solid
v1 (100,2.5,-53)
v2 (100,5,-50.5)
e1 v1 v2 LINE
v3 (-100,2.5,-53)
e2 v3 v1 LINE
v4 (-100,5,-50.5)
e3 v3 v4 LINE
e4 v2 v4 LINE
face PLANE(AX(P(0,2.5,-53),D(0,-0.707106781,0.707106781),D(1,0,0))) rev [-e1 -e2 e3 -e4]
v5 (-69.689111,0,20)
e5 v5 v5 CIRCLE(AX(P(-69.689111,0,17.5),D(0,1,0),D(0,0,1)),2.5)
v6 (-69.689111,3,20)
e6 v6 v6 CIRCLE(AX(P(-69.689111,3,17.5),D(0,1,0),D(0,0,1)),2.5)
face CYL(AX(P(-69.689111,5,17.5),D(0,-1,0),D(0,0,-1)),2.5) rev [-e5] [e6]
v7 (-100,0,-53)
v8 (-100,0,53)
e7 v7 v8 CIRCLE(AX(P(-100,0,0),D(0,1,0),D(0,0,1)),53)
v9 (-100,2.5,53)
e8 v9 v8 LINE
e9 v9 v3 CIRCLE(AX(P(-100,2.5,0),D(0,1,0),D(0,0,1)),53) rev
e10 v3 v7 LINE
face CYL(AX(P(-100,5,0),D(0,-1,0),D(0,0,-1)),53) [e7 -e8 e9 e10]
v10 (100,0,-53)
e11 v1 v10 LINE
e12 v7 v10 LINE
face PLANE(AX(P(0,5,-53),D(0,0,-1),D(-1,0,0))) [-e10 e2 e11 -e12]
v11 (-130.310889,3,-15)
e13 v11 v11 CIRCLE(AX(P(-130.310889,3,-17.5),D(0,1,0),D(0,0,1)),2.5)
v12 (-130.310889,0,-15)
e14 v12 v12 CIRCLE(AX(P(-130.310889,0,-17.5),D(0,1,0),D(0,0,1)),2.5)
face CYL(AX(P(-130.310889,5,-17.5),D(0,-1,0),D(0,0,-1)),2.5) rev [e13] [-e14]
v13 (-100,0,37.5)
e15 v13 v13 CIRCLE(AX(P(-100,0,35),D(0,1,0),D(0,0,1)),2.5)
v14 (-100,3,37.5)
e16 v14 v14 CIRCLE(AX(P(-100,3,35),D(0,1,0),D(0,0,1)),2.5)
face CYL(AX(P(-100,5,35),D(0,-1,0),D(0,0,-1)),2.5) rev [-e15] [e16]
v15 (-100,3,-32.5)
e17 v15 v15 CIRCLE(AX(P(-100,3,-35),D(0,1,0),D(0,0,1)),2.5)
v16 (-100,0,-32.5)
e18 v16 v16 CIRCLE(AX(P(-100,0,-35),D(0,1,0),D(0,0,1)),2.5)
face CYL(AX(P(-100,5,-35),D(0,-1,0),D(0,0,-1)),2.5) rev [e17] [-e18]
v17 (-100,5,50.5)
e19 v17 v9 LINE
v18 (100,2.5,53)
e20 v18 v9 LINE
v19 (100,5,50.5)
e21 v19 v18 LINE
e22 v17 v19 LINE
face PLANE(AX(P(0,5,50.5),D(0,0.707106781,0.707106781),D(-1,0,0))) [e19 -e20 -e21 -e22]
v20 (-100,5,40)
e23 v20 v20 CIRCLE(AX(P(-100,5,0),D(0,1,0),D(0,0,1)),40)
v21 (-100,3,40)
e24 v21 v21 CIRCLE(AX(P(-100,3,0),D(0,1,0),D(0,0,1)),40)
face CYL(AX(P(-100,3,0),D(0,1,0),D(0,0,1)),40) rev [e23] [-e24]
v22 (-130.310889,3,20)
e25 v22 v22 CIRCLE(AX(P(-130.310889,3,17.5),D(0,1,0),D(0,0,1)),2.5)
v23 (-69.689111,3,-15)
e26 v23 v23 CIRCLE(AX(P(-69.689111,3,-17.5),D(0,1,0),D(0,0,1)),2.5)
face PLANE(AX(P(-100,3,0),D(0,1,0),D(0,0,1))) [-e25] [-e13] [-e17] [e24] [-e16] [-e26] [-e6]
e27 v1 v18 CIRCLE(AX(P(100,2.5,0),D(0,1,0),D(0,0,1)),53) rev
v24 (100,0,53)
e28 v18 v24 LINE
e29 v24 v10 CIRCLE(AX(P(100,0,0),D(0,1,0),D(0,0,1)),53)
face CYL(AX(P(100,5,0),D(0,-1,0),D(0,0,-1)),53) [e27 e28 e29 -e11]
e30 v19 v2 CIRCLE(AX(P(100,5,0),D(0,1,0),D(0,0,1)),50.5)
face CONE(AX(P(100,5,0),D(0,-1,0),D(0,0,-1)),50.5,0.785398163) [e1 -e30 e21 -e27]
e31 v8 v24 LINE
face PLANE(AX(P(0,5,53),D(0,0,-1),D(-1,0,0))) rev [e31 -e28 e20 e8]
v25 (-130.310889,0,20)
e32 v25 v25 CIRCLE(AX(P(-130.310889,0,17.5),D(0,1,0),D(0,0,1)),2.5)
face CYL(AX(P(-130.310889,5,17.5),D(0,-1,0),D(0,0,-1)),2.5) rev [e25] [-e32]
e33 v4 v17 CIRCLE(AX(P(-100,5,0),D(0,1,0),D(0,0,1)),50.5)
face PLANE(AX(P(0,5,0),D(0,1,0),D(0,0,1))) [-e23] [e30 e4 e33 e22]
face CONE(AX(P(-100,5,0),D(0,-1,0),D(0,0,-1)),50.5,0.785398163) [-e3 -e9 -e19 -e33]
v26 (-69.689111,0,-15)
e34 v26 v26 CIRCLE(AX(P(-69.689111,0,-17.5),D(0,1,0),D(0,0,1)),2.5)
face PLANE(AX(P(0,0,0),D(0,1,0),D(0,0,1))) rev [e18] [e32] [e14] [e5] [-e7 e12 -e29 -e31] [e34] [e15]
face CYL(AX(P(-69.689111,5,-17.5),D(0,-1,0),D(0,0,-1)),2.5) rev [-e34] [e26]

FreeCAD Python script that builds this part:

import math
import FreeCAD as App
import Part
import Sketcher
from FreeCAD import Vector
Q = App.Units.Quantity


def edges_at(feature, points):
    """Names of the edges that pass closest to the given points."""
    edges = feature.Shape.Edges
    near = lambda p: min(range(len(edges)), key=lambda i: edges[i].distToShape(Part.Vertex(*p))[0])
    return sorted({f"Edge{near(p) + 1}" for p in points})

doc = App.newDocument("Part")
body = doc.addObject("PartDesign::Body", "Body")

# Sketch on XZ plane
sketch1 = doc.addObject("Sketcher::SketchObject", "Sketch")
body.addObject(sketch1)
sketch1.AttachmentSupport = (doc.XZ_Plane, [""])
sketch1.MapMode = "FlatFace"
sketch1.addGeometry(Part.LineSegment(Vector(-100, 53, 0), Vector(100, 53, 0)), False)
sketch1.addGeometry(Part.ArcOfCircle(Part.Circle(Vector(100, 0, 0), Vector(0, 0, 1), 53), math.radians(-90), math.radians(90)), False)
sketch1.addGeometry(Part.LineSegment(Vector(100, -53, 0), Vector(-100, -53, 0)), False)
sketch1.addGeometry(Part.ArcOfCircle(Part.Circle(Vector(-100, 0, 0), Vector(0, 0, 1), 53), math.radians(90), math.radians(270)), False)
sketch1.addGeometry(Part.Circle(Vector(-130.3, 17.5, 0), Vector(0, 0, 1), 2.5), False)
sketch1.addGeometry(Part.Circle(Vector(-100, 35, 0), Vector(0, 0, 1), 2.5), False)
sketch1.addGeometry(Part.Circle(Vector(-69.7, 17.5, 0), Vector(0, 0, 1), 2.5), False)
sketch1.addGeometry(Part.Circle(Vector(-130.3, -17.5, 0), Vector(0, 0, 1), 2.5), False)
sketch1.addGeometry(Part.Circle(Vector(-69.7, -17.5, 0), Vector(0, 0, 1), 2.5), False)
sketch1.addGeometry(Part.Circle(Vector(-100, -35, 0), Vector(0, 0, 1), 2.5), False)
sketch1.addConstraint(Sketcher.Constraint("Tangent", 0, 2, 1, 2))
sketch1.addConstraint(Sketcher.Constraint("Tangent", 1, 1, 2, 1))
sketch1.addConstraint(Sketcher.Constraint("Tangent", 2, 2, 3, 2))
sketch1.addConstraint(Sketcher.Constraint("Tangent", 3, 1, 0, 1))
sketch1.addConstraint(Sketcher.Constraint("Horizontal", 0))
sketch1.addConstraint(Sketcher.Constraint("Horizontal", 2))
sketch1.addConstraint(Sketcher.Constraint("Equal", 4, 5))
sketch1.addConstraint(Sketcher.Constraint("Equal", 5, 6))
sketch1.addConstraint(Sketcher.Constraint("Equal", 6, 7))
sketch1.addConstraint(Sketcher.Constraint("Equal", 7, 8))
sketch1.addConstraint(Sketcher.Constraint("Equal", 8, 9))
sketch1.addConstraint(Sketcher.Constraint("Symmetric", 1, 3, 3, 3, -1, 1))
sketch1.addConstraint(Sketcher.Constraint("Symmetric", 4, 3, 7, 3, -1))
sketch1.addConstraint(Sketcher.Constraint("Symmetric", 6, 3, 8, 3, -1))
sketch1.addConstraint(Sketcher.Constraint("Symmetric", 5, 3, 9, 3, -1))
sketch1.addConstraint(Sketcher.Constraint("Horizontal", 4, 3, 6, 3))
sketch1.addConstraint(Sketcher.Constraint("Vertical", 3, 3, 5, 3))
sketch1.addConstraint(Sketcher.Constraint("Diameter", 4, Q("5 mm")))
sketch1.addConstraint(Sketcher.Constraint("Radius", 1, Q("53 mm")))
sketch1.addConstraint(Sketcher.Constraint("DistanceX", 0, 1, 0, 2, Q("200 mm")))
sketch1.addConstraint(Sketcher.Constraint("DistanceY", -1, 1, 5, 3, Q("35 mm")))
sketch1.addConstraint(Sketcher.Constraint("DistanceY", 7, 3, 4, 3, Q("35 mm")))
sketch1.addConstraint(Sketcher.Constraint("DistanceX", 4, 3, -1, 1, Q("130.310889 mm")))
sketch1.addConstraint(Sketcher.Constraint("DistanceX", 6, 3, -1, 1, Q("69.689111 mm")))
pad1 = doc.addObject("PartDesign::Pad", "Pad")
body.addObject(pad1)
pad1.Profile = sketch1
pad1.Length = 5
pad1.Reversed = True

# Sketch on XZ plane
sketch2 = doc.addObject("Sketcher::SketchObject", "Sketch001")
body.addObject(sketch2)
sketch2.AttachmentSupport = (doc.XZ_Plane, [""])
sketch2.MapMode = "FlatFace"
sketch2.AttachmentOffset = App.Placement(Vector(0, 0, -5), App.Rotation())
sketch2.addGeometry(Part.Circle(Vector(-100, 0, 0), Vector(0, 0, 1), 40), False)
sketch2.addConstraint(Sketcher.Constraint("PointOnObject", 0, 3, -1))
sketch2.addConstraint(Sketcher.Constraint("Diameter", 0, Q("80 mm")))
sketch2.addConstraint(Sketcher.Constraint("DistanceX", 0, 3, -1, 1, Q("100 mm")))
pocket1 = doc.addObject("PartDesign::Pocket", "Pocket")
body.addObject(pocket1)
pocket1.Profile = sketch2
pocket1.Length = 2
pocket1.Reversed = True
doc.recompute()

chamfer = doc.addObject("PartDesign::Chamfer", "Chamfer")
body.addObject(chamfer)
chamfer.Base = (pocket1, edges_at(pocket1, [
    (-153, 5, 0),
    (0, 5, 53),
    (153, 5, 0),
    (0, 5, -53),
]))
chamfer.Size = 2.5

doc.recompute()
